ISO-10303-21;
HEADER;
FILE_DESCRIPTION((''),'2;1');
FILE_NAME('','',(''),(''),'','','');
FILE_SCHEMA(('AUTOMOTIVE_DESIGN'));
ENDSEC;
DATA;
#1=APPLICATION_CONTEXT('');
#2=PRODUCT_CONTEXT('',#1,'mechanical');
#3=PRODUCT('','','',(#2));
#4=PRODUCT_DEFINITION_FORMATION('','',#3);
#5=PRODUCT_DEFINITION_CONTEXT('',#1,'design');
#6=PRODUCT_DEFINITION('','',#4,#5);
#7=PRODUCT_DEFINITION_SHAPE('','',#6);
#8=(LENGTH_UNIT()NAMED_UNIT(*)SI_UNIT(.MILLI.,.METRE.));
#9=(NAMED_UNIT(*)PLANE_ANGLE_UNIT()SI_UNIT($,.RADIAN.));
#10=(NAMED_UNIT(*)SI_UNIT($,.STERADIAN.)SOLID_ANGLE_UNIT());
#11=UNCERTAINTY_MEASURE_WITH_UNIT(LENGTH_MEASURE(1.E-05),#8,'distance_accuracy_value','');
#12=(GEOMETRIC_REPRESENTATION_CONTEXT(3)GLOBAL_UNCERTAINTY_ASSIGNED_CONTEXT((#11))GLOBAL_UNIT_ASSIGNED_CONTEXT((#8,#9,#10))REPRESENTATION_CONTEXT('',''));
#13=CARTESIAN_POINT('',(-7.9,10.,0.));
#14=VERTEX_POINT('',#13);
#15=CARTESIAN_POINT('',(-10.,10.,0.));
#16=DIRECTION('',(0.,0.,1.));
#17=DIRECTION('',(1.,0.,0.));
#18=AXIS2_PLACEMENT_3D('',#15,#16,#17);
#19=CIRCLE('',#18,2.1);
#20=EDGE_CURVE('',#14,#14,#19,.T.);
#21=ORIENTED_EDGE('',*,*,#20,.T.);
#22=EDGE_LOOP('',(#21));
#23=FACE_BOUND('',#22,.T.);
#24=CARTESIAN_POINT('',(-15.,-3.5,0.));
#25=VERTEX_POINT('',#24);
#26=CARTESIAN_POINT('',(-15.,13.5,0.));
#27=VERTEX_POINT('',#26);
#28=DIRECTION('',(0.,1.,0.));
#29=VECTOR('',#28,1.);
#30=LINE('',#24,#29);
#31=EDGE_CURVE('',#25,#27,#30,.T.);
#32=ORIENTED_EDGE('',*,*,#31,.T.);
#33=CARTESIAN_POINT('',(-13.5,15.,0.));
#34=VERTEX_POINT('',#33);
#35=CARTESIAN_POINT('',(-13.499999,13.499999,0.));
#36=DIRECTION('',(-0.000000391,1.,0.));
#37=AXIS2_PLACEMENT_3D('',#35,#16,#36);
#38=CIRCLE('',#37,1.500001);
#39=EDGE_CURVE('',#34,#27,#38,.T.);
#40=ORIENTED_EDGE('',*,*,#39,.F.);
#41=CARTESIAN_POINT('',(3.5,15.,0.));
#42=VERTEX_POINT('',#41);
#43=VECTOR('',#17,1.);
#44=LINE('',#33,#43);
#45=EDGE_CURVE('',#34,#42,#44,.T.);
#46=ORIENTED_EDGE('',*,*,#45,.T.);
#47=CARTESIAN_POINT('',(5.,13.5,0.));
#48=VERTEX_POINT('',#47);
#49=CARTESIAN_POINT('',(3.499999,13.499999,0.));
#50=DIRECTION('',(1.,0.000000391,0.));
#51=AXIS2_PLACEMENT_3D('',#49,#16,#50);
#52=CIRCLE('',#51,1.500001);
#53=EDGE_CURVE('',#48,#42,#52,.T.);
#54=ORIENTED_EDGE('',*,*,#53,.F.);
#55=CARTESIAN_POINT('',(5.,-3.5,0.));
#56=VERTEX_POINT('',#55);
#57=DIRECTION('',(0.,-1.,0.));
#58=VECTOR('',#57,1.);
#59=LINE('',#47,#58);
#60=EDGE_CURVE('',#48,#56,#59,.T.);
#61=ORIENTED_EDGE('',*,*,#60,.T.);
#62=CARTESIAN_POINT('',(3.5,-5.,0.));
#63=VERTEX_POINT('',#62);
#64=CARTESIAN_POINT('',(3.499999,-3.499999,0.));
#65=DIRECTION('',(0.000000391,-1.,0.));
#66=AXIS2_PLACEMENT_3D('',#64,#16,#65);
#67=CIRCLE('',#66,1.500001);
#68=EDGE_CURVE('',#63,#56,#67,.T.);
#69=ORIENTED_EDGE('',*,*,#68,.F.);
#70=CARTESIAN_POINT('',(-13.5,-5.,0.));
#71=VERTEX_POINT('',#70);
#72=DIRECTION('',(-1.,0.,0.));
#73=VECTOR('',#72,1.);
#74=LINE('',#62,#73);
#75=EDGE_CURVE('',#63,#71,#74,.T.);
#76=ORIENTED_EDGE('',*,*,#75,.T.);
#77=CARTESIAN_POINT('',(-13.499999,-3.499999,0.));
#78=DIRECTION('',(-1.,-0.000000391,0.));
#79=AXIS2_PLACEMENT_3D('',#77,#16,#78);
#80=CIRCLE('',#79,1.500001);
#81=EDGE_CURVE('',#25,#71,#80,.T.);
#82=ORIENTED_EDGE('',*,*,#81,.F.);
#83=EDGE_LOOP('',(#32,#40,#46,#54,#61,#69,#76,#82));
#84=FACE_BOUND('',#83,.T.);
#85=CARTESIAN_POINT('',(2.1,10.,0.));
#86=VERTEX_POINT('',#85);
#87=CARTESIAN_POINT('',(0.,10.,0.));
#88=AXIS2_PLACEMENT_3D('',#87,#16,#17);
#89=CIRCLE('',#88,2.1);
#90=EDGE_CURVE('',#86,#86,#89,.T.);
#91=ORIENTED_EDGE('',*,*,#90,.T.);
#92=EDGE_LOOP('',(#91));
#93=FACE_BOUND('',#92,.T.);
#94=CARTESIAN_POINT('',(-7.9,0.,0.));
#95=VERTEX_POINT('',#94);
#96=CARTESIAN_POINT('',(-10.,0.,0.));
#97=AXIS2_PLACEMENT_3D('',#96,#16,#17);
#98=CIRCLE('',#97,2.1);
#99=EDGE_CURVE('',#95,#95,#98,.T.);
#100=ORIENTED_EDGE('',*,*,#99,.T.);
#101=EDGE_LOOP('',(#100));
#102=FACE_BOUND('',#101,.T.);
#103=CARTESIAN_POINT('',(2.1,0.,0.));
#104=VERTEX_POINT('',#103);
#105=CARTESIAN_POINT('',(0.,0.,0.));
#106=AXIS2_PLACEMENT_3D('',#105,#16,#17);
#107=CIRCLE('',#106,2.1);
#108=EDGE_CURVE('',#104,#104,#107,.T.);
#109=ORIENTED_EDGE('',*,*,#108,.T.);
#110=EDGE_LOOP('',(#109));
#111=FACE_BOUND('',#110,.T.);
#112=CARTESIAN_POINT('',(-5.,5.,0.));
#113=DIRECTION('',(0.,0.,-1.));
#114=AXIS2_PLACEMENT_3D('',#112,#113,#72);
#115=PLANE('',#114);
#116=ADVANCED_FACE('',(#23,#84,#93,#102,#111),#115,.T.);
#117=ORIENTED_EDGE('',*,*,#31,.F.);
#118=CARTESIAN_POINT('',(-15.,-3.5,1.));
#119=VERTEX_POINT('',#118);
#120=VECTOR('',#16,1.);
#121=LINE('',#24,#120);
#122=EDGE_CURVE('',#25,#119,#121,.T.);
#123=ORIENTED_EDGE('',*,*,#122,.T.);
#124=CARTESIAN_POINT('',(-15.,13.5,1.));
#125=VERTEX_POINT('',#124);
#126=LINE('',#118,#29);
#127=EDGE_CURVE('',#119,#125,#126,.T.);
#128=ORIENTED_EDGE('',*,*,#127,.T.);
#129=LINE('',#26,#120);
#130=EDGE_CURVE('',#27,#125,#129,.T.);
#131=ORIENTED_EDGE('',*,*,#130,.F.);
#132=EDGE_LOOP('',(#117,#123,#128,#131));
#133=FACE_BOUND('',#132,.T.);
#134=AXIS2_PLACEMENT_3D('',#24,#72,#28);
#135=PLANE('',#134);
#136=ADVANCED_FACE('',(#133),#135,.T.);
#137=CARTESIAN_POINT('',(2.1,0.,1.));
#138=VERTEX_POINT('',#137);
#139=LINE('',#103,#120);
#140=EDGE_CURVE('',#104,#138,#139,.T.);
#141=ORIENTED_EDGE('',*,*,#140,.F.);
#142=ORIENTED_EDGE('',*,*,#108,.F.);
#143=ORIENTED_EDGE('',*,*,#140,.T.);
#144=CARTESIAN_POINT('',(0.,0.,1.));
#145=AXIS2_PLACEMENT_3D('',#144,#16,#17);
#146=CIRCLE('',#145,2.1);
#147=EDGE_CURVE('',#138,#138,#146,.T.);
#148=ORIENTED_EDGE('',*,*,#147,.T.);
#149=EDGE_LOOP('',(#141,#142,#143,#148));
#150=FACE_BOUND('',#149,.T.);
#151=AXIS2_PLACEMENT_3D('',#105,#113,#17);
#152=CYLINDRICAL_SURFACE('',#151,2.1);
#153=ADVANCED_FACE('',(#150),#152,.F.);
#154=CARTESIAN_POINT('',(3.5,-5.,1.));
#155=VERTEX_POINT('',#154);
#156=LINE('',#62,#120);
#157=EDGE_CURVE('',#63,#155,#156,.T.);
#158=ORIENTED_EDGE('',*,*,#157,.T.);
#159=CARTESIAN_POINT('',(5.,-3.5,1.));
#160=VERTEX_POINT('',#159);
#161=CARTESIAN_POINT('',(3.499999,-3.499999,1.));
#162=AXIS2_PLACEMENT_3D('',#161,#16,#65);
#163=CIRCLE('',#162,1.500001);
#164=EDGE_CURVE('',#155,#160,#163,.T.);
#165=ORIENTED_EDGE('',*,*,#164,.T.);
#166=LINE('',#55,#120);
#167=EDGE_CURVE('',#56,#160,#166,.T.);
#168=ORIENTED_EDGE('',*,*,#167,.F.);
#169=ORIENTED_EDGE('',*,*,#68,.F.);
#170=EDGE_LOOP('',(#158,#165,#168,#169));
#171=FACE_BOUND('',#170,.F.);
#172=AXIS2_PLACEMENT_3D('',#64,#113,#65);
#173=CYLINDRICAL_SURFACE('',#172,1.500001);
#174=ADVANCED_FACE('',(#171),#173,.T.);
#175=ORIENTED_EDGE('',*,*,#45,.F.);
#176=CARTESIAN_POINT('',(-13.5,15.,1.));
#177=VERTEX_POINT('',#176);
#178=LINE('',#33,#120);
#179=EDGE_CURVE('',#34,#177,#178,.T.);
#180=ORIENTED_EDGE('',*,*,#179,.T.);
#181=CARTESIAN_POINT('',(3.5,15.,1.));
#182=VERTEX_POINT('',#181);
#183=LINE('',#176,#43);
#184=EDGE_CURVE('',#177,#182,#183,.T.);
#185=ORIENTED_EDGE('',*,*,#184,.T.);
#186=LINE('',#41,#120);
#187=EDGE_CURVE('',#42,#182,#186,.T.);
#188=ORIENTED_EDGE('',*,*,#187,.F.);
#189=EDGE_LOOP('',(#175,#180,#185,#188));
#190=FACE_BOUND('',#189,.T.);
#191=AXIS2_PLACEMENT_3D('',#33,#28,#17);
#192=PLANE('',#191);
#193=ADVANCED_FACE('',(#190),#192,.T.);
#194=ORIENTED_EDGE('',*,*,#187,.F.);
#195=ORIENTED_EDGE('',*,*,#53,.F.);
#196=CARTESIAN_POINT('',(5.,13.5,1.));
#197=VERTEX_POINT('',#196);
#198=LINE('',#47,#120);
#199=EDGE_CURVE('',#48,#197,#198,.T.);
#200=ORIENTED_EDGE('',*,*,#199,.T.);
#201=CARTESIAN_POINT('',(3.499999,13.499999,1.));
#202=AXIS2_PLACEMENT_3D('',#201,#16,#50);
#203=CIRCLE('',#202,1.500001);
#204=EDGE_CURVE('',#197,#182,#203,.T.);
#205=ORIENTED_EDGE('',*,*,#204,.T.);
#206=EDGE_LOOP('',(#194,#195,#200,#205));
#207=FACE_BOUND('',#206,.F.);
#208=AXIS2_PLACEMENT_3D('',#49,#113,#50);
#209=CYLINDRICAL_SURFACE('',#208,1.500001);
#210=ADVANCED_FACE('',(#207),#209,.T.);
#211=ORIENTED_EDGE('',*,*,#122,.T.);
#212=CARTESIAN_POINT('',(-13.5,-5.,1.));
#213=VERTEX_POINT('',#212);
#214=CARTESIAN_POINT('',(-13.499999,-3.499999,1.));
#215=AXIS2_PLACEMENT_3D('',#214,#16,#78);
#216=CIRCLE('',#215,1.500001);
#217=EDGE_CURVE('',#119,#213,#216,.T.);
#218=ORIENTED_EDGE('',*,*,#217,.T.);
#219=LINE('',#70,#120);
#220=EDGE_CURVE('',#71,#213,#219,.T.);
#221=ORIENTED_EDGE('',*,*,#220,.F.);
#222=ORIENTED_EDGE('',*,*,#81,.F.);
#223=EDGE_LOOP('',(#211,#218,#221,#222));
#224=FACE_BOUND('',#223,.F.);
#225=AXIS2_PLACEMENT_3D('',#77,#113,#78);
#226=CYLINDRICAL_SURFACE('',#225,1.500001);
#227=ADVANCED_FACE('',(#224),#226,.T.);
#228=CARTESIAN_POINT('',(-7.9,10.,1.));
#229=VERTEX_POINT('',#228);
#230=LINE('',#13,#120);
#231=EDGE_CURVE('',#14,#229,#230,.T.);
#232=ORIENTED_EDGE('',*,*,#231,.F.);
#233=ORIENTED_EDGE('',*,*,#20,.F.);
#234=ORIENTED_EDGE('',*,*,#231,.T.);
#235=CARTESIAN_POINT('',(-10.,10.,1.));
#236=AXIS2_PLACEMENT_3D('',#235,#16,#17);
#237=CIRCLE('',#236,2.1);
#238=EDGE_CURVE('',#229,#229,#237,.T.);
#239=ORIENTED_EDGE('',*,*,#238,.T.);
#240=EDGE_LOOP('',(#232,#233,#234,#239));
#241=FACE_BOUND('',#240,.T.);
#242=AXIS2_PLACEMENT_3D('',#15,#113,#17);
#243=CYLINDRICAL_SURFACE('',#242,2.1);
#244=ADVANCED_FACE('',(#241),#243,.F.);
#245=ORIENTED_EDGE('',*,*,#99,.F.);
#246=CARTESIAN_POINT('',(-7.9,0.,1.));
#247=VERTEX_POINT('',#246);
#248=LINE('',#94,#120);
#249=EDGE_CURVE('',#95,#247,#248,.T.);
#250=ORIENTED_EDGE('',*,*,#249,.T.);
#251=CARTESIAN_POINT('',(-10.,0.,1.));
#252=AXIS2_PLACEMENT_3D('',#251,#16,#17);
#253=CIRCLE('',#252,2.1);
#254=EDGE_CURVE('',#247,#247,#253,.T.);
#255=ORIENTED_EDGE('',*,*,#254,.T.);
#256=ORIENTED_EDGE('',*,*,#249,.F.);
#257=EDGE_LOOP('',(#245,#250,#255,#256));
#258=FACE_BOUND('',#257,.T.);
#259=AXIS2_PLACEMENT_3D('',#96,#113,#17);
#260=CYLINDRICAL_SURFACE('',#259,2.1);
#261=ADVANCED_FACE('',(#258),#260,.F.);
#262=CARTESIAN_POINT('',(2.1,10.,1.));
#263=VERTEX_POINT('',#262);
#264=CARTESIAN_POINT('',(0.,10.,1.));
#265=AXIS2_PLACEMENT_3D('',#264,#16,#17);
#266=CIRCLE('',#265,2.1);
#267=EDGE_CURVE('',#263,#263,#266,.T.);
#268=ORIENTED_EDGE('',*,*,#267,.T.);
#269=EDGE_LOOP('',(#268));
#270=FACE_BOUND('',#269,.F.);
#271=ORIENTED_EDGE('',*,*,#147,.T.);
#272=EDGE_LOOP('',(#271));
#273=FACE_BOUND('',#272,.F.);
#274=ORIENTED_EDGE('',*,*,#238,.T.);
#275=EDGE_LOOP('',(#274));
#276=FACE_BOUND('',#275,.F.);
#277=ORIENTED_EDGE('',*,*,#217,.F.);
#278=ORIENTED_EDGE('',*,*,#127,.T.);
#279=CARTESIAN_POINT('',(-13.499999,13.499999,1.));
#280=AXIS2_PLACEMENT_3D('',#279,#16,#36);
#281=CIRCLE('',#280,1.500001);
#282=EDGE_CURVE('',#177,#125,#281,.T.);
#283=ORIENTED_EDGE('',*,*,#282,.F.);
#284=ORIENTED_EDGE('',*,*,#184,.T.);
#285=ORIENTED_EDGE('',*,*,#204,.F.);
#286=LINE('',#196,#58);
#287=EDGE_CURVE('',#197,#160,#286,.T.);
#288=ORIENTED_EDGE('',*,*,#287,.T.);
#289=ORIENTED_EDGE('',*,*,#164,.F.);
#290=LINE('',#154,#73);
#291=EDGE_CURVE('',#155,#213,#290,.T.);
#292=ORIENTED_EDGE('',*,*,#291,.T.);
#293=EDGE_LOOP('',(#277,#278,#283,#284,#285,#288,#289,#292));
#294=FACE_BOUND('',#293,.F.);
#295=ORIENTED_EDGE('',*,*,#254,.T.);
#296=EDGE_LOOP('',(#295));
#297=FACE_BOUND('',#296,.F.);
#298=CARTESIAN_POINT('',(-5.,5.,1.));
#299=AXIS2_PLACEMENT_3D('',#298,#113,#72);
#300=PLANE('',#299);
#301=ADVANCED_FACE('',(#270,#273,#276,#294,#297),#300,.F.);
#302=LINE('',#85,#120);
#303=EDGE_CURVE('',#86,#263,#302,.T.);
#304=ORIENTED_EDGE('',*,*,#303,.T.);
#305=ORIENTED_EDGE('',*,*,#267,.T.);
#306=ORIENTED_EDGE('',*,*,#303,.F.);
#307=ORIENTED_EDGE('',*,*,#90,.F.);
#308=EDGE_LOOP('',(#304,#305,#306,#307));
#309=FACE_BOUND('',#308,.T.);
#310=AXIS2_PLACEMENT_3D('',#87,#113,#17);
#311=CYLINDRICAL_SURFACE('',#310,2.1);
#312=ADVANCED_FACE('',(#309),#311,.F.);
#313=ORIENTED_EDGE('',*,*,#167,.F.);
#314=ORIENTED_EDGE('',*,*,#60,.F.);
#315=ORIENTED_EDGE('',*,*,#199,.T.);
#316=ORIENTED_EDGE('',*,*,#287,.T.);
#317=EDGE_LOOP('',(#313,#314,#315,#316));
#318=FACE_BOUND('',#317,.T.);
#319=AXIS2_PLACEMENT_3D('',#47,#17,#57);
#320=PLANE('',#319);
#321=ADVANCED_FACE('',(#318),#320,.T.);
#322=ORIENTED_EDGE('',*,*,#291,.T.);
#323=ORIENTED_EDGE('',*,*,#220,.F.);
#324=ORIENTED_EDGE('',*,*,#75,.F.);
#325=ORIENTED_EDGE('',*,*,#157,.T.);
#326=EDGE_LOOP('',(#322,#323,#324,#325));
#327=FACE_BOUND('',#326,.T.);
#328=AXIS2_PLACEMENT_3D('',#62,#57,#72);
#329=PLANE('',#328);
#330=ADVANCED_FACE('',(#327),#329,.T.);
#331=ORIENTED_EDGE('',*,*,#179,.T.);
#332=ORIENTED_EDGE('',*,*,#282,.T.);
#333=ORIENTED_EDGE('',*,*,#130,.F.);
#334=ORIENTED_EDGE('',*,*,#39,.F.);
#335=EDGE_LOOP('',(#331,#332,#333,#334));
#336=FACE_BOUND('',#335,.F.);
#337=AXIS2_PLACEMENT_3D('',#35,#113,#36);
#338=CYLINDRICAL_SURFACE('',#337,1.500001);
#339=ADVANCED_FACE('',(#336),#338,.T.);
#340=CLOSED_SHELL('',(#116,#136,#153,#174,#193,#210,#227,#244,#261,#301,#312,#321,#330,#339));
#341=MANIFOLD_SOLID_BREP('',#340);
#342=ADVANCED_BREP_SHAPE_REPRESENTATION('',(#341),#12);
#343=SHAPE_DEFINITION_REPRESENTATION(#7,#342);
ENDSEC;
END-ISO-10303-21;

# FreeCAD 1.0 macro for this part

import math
import FreeCAD as App
import Part
import Sketcher
Q = App.Units.Quantity

doc = App.newDocument("Part")
body = doc.addObject("PartDesign::Body", "Body")

# Sketch on XY plane
sketch1 = body.newObject("Sketcher::SketchObject", "Sketch")
sketch1.AttachmentSupport = (doc.getObject("XY_Plane"), [""])
sketch1.MapMode = "FlatFace"
sketch1.addGeometry([
    Part.LineSegment(App.Vector(3.5, 15, 0), App.Vector(-13.5, 15, 0)),  # 0
    Part.ArcOfCircle(Part.Circle(App.Vector(-13.499999, 13.499999, 0), App.Vector(0, 0, 1), 1.500001), math.radians(90.000022), math.radians(179.999978)),  # 1
    Part.LineSegment(App.Vector(-15, 13.5, 0), App.Vector(-15, -3.5, 0)),  # 2
    Part.ArcOfCircle(Part.Circle(App.Vector(-13.499999, -3.499999, 0), App.Vector(0, 0, 1), 1.500001), math.radians(-179.999978), math.radians(-90.000022)),  # 3
    Part.LineSegment(App.Vector(-13.5, -5, 0), App.Vector(3.5, -5, 0)),  # 4
    Part.ArcOfCircle(Part.Circle(App.Vector(3.499999, -3.499999, 0), App.Vector(0, 0, 1), 1.500001), math.radians(-89.999978), math.radians(-0.000022)),  # 5
    Part.LineSegment(App.Vector(5, -3.5, 0), App.Vector(5, 13.5, 0)),  # 6
    Part.ArcOfCircle(Part.Circle(App.Vector(3.499999, 13.499999, 0), App.Vector(0, 0, 1), 1.500001), math.radians(0.000022), math.radians(89.999978)),  # 7
    Part.Circle(App.Vector(0, 0, 0), App.Vector(0, 0, 1), 2.1),  # 8
    Part.Circle(App.Vector(-10, 0, 0), App.Vector(0, 0, 1), 2.1),  # 9
    Part.Circle(App.Vector(0, 10, 0), App.Vector(0, 0, 1), 2.1),  # 10
    Part.Circle(App.Vector(-10, 10, 0), App.Vector(0, 0, 1), 2.1),  # 11
], False)
sketch1.addConstraint([
    Sketcher.Constraint("Tangent", 0, 2, 1, 1),
    Sketcher.Constraint("Tangent", 1, 2, 2, 1),
    Sketcher.Constraint("Tangent", 2, 2, 3, 1),
    Sketcher.Constraint("Tangent", 3, 2, 4, 1),
    Sketcher.Constraint("Tangent", 4, 2, 5, 1),
    Sketcher.Constraint("Tangent", 5, 2, 6, 1),
    Sketcher.Constraint("Tangent", 6, 2, 7, 1),
    Sketcher.Constraint("Tangent", 7, 2, 0, 1),
    Sketcher.Constraint("Horizontal", 0),
    Sketcher.Constraint("Vertical", 2),
    Sketcher.Constraint("Horizontal", 4),
    Sketcher.Constraint("Vertical", 6),
    Sketcher.Constraint("Coincident", 8, 3, -1, 1),
    Sketcher.Constraint("Equal", 1, 3),
    Sketcher.Constraint("Equal", 3, 5),
    Sketcher.Constraint("Equal", 5, 7),
    Sketcher.Constraint("Equal", 8, 9),
    Sketcher.Constraint("Equal", 9, 10),
    Sketcher.Constraint("Equal", 10, 11),
    Sketcher.Constraint("PointOnObject", 9, 3, -1),
    Sketcher.Constraint("PointOnObject", 10, 3, -2),
    Sketcher.Constraint("Horizontal", 10, 3, 11, 3),
    Sketcher.Constraint("Vertical", 9, 3, 11, 3),
    Sketcher.Constraint("Equal", 4, 2),
    Sketcher.Constraint("Diameter", 8, Q("4.2 mm")),
    Sketcher.Constraint("Radius", 1, Q("1.500001 mm")),
    Sketcher.Constraint("DistanceX", 0, 2, 0, 1, Q("17 mm")),
    Sketcher.Constraint("DistanceX", 9, 3, -1, 1, Q("10 mm")),
    Sketcher.Constraint("DistanceY", -1, 1, 10, 3, Q("10 mm")),
    Sketcher.Constraint("DistanceY", -1, 1, 0, 2, Q("15 mm")),
    Sketcher.Constraint("DistanceX", 1, 2, -1, 1, Q("15 mm")),
])
pad1 = body.newObject("PartDesign::Pad", "Pad")
pad1.Profile = sketch1
pad1.Length = 1

doc.recompute()
